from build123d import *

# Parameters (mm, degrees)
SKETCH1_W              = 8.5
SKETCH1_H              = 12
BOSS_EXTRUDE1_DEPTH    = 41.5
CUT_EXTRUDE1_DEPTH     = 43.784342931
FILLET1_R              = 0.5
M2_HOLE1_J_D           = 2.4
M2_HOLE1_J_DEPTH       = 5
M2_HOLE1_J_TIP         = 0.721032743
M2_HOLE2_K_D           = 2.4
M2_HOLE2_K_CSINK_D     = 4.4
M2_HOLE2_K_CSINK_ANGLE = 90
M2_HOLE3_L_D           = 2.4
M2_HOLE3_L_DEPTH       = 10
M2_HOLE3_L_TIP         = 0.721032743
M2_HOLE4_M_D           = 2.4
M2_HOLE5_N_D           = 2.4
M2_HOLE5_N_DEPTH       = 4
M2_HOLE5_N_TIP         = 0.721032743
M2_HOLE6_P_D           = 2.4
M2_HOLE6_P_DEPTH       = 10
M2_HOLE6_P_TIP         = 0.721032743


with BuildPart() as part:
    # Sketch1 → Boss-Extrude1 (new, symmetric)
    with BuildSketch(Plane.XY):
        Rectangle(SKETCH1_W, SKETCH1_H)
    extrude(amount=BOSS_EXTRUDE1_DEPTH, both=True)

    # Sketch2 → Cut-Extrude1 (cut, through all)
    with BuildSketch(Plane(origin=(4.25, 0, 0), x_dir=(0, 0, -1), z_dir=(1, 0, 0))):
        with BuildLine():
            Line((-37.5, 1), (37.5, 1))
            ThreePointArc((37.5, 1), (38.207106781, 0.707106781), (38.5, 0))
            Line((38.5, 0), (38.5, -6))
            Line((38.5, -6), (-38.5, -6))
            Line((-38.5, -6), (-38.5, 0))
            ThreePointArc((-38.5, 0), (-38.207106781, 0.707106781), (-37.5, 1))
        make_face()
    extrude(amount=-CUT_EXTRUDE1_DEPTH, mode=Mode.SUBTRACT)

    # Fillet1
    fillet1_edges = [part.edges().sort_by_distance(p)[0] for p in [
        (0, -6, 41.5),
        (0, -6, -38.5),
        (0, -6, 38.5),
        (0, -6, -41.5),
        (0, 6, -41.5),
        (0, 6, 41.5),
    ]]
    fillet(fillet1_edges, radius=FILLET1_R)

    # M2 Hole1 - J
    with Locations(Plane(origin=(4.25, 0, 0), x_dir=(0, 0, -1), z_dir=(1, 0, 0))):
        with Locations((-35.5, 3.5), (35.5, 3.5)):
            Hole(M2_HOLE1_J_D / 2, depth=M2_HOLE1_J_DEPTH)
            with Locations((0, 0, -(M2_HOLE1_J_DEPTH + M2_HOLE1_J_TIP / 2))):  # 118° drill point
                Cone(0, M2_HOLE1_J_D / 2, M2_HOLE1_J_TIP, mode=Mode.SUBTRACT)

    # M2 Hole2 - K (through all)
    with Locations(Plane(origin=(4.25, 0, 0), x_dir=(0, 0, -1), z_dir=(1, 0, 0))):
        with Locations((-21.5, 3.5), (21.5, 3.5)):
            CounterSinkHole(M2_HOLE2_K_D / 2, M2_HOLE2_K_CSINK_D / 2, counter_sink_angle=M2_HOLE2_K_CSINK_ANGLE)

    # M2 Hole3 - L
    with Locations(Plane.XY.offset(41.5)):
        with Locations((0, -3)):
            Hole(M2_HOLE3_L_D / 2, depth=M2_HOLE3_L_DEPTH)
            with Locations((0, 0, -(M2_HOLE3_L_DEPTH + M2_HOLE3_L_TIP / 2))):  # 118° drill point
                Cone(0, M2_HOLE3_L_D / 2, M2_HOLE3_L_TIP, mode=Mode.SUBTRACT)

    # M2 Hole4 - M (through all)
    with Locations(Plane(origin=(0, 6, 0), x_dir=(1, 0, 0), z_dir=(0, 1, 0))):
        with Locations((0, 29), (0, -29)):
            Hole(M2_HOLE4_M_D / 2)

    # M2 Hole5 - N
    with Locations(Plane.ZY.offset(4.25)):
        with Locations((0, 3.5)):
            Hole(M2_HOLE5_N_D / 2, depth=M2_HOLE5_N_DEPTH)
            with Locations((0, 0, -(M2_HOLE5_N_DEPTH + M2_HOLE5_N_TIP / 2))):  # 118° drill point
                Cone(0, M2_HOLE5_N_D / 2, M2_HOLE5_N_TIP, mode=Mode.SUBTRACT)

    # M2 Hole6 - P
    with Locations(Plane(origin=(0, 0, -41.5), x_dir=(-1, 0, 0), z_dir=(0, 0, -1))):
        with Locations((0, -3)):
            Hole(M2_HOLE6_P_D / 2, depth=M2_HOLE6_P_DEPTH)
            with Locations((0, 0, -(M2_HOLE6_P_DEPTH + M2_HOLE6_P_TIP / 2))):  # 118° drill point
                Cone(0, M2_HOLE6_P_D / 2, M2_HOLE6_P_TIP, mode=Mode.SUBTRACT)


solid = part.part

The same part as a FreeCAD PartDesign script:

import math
import FreeCAD as App
import Part
import Sketcher

V = App.Vector


def edges_at(feature, points):
    """Names of the edges that pass closest to the given points."""
    edges = feature.Shape.Edges
    near = lambda p: min(range(len(edges)), key=lambda i: edges[i].distToShape(Part.Vertex(*p))[0])
    return sorted({f"Edge{near(p) + 1}" for p in points})


def add_polygon(sketch, points):
    """Adds a closed chain of lines whose ends are joined by coincident constraints."""
    first, n = sketch.GeometryCount, len(points)
    for a, b in zip(points, points[1:] + points[:1]):
        sketch.addGeometry(Part.LineSegment(App.Vector(*a, 0), App.Vector(*b, 0)), False)
    for i in range(n):
        sketch.addConstraint(Sketcher.Constraint("Coincident", first + i, 2, first + (i + 1) % n, 1))

doc = App.newDocument("Part")
params = doc.addObject("Spreadsheet::Sheet", "Params")
for row, (alias, value) in enumerate([
    ("sketch1_height", "12 mm"),
    ("sketch1_width", "8.5 mm"),
    ("pad1_length", "83 mm"),
    ("sketch2_radius", "1 mm"),
    ("sketch2_width", "6 mm"),
    ("sketch2_height", "75 mm"),
    ("fillet_radius", "0.5 mm"),
    ("sketch3_diameter", "2.4 mm"),
    ("hole_diameter", "2.4 mm"),
    ("hole_depth", "5 mm"),
    ("sketch4_diameter", "2.4 mm"),
    ("hole2_diameter", "2.4 mm"),
    ("hole2_csink_diameter", "4.4 mm"),
    ("sketch5_diameter", "2.4 mm"),
    ("hole3_diameter", "2.4 mm"),
    ("hole3_depth", "10 mm"),
    ("sketch6_diameter", "2.4 mm"),
    ("hole4_diameter", "2.4 mm"),
    ("sketch7_diameter", "2.4 mm"),
    ("hole5_diameter", "2.4 mm"),
    ("hole5_depth", "4 mm"),
    ("sketch8_diameter", "2.4 mm"),
    ("hole6_diameter", "2.4 mm"),
    ("hole6_depth", "10 mm"),
], start=1):
    params.set(f"A{row}", alias)
    params.set(f"B{row}", "=" + value)
    params.setAlias(f"B{row}", alias)

body = doc.addObject("PartDesign::Body", "Body")

# Sketch on XY plane
sketch1 = body.newObject("Sketcher::SketchObject", "Sketch")
sketch1.AttachmentSupport = (doc.getObject("XY_Plane"), [""])
sketch1.MapMode = "FlatFace"
add_polygon(sketch1, [(-4.25, 6), (-4.25, -6), (4.25, -6), (4.25, 6)])  # lines 0-3
sketch1.addConstraint(Sketcher.Constraint("Vertical", 0))
sketch1.addConstraint(Sketcher.Constraint("Horizontal", 1))
sketch1.addConstraint(Sketcher.Constraint("Vertical", 2))
sketch1.addConstraint(Sketcher.Constraint("Horizontal", 3))
sketch1.addConstraint(Sketcher.Constraint("Symmetric", 0, 2, 2, 2, -1, 1))
sketch1.addConstraint(Sketcher.Constraint("DistanceY", 0, 2, 0, 1, 12.0))
sketch1.addConstraint(Sketcher.Constraint("DistanceX", 1, 1, 1, 2, 8.5))
sketch1.setExpression("Constraints[9]", "Params.sketch1_height")
sketch1.setExpression("Constraints[10]", "Params.sketch1_width")
pad1 = body.newObject("PartDesign::Pad", "Pad")
pad1.Profile = sketch1
pad1.setExpression("Length", "Params.pad1_length")
pad1.Midplane = True

# Sketch on YZ plane
sketch2 = body.newObject("Sketcher::SketchObject", "Sketch001")
sketch2.AttachmentSupport = (doc.getObject("YZ_Plane"), [""])
sketch2.MapMode = "FlatFace"
sketch2.AttachmentOffset = App.Placement(V(0, 0, 4.25), App.Rotation())
sketch2.addGeometry(Part.LineSegment(V(1, -37.5, 0), V(1, 37.5, 0)), False)
sketch2.addGeometry(Part.ArcOfCircle(Part.Circle(V(0, 37.5, 0), V(0, 0, 1), 1), math.radians(0), math.radians(90)), False)
sketch2.addGeometry(Part.LineSegment(V(0, 38.5, 0), V(-6, 38.5, 0)), False)
sketch2.addGeometry(Part.LineSegment(V(-6, 38.5, 0), V(-6, -38.5, 0)), False)
sketch2.addGeometry(Part.LineSegment(V(-6, -38.5, 0), V(0, -38.5, 0)), False)
sketch2.addGeometry(Part.ArcOfCircle(Part.Circle(V(0, -37.5, 0), V(0, 0, 1), 1), math.radians(-90), math.radians(0)), False)
sketch2.addConstraint(Sketcher.Constraint("Tangent", 0, 2, 1, 1))
sketch2.addConstraint(Sketcher.Constraint("Tangent", 1, 2, 2, 1))
sketch2.addConstraint(Sketcher.Constraint("Coincident", 2, 2, 3, 1))
sketch2.addConstraint(Sketcher.Constraint("Coincident", 3, 2, 4, 1))
sketch2.addConstraint(Sketcher.Constraint("Tangent", 4, 2, 5, 1))
sketch2.addConstraint(Sketcher.Constraint("Tangent", 5, 2, 0, 1))
sketch2.addConstraint(Sketcher.Constraint("Vertical", 0))
sketch2.addConstraint(Sketcher.Constraint("Horizontal", 2))
sketch2.addConstraint(Sketcher.Constraint("Vertical", 3))
sketch2.addConstraint(Sketcher.Constraint("Horizontal", 4))
sketch2.addConstraint(Sketcher.Constraint("Equal", 1, 5))
sketch2.addConstraint(Sketcher.Constraint("Symmetric", 1, 3, 5, 3, -1, 1))
sketch2.addConstraint(Sketcher.Constraint("Radius", 1, 1.0))
sketch2.addConstraint(Sketcher.Constraint("DistanceX", 2, 2, 2, 1, 6.0))
sketch2.addConstraint(Sketcher.Constraint("DistanceY", 0, 1, 0, 2, 75.0))
sketch2.setExpression("Constraints[12]", "Params.sketch2_radius")
sketch2.setExpression("Constraints[13]", "Params.sketch2_width")
sketch2.setExpression("Constraints[14]", "Params.sketch2_height")
pocket1 = body.newObject("PartDesign::Pocket", "Pocket")
pocket1.Profile = sketch2
pocket1.Type = "ThroughAll"
doc.recompute()

fillet = body.newObject("PartDesign::Fillet", "Fillet")
fillet.Base = (pocket1, edges_at(pocket1, [
    (0, -6, 41.5),
    (0, -6, -38.5),
    (0, -6, 38.5),
    (0, -6, -41.5),
    (0, 6, -41.5),
    (0, 6, 41.5),
]))
fillet.setExpression("Radius", "Params.fillet_radius")

# Sketch on YZ plane
sketch3 = body.newObject("Sketcher::SketchObject", "Sketch002")
sketch3.AttachmentSupport = (doc.getObject("YZ_Plane"), [""])
sketch3.MapMode = "FlatFace"
sketch3.AttachmentOffset = App.Placement(V(0, 0, 4.25), App.Rotation())
sketch3.addGeometry(Part.Circle(V(3.5, 35.5, 0), V(0, 0, 1), 1.2), False)
sketch3.addGeometry(Part.Circle(V(3.5, -35.5, 0), V(0, 0, 1), 1.2), False)
sketch3.addConstraint(Sketcher.Constraint("Equal", 0, 1))
sketch3.addConstraint(Sketcher.Constraint("Symmetric", 0, 3, 1, 3, -1))
sketch3.addConstraint(Sketcher.Constraint("Diameter", 0, 2.4))
sketch3.addConstraint(Sketcher.Constraint("DistanceY", 1, 3, 0, 3, 71.0))
sketch3.addConstraint(Sketcher.Constraint("DistanceX", -1, 1, 0, 3, 3.5))
sketch3.setExpression("Constraints[2]", "Params.sketch3_diameter")
doc.recompute()
hole = body.newObject("PartDesign::Hole", "Hole")
hole.Profile = sketch3
hole.ThreadType = "None"
hole.setExpression("Diameter", "Params.hole_diameter")
hole.DepthType = "Dimension"
hole.setExpression("Depth", "Params.hole_depth")
hole.DrillPoint = "Angled"
hole.DrillPointAngle = 118

# Sketch on YZ plane
sketch4 = body.newObject("Sketcher::SketchObject", "Sketch003")
sketch4.AttachmentSupport = (doc.getObject("YZ_Plane"), [""])
sketch4.MapMode = "FlatFace"
sketch4.AttachmentOffset = App.Placement(V(0, 0, 4.25), App.Rotation())
sketch4.addGeometry(Part.Circle(V(3.5, 21.5, 0), V(0, 0, 1), 1.2), False)
sketch4.addGeometry(Part.Circle(V(3.5, -21.5, 0), V(0, 0, 1), 1.2), False)
sketch4.addConstraint(Sketcher.Constraint("Equal", 0, 1))
sketch4.addConstraint(Sketcher.Constraint("Symmetric", 0, 3, 1, 3, -1))
sketch4.addConstraint(Sketcher.Constraint("Diameter", 0, 2.4))
sketch4.addConstraint(Sketcher.Constraint("DistanceY", 1, 3, 0, 3, 43.0))
sketch4.addConstraint(Sketcher.Constraint("DistanceX", -1, 1, 0, 3, 3.5))
sketch4.setExpression("Constraints[2]", "Params.sketch4_diameter")
doc.recompute()
hole2 = body.newObject("PartDesign::Hole", "Hole001")
hole2.Profile = sketch4
hole2.ThreadType = "None"
hole2.setExpression("Diameter", "Params.hole2_diameter")
hole2.DepthType = "ThroughAll"
hole2.HoleCutType = "Countersink"
hole2.setExpression("HoleCutDiameter", "Params.hole2_csink_diameter")
hole2.HoleCutCountersinkAngle = 90

# Sketch on XY plane
sketch5 = body.newObject("Sketcher::SketchObject", "Sketch004")
sketch5.AttachmentSupport = (doc.getObject("XY_Plane"), [""])
sketch5.MapMode = "FlatFace"
sketch5.AttachmentOffset = App.Placement(V(0, 0, 41.5), App.Rotation())
sketch5.addGeometry(Part.Circle(V(0, -3, 0), V(0, 0, 1), 1.2), False)
sketch5.addConstraint(Sketcher.Constraint("PointOnObject", 0, 3, -2))
sketch5.addConstraint(Sketcher.Constraint("Diameter", 0, 2.4))
sketch5.addConstraint(Sketcher.Constraint("DistanceY", 0, 3, -1, 1, 3.0))
sketch5.setExpression("Constraints[1]", "Params.sketch5_diameter")
doc.recompute()
hole3 = body.newObject("PartDesign::Hole", "Hole002")
hole3.Profile = sketch5
hole3.ThreadType = "None"
hole3.setExpression("Diameter", "Params.hole3_diameter")
hole3.DepthType = "Dimension"
hole3.setExpression("Depth", "Params.hole3_depth")
hole3.DrillPoint = "Angled"
hole3.DrillPointAngle = 118

# Sketch on XZ plane
sketch6 = body.newObject("Sketcher::SketchObject", "Sketch005")
sketch6.AttachmentSupport = (doc.getObject("XZ_Plane"), [""])
sketch6.MapMode = "FlatFace"
sketch6.AttachmentOffset = App.Placement(V(0, 0, -6), App.Rotation())
sketch6.addGeometry(Part.Circle(V(0, -29, 0), V(0, 0, 1), 1.2), False)
sketch6.addGeometry(Part.Circle(V(0, 29, 0), V(0, 0, 1), 1.2), False)
sketch6.addConstraint(Sketcher.Constraint("Equal", 0, 1))
sketch6.addConstraint(Sketcher.Constraint("Symmetric", 0, 3, 1, 3, -1, 1))
sketch6.addConstraint(Sketcher.Constraint("PointOnObject", 0, 3, -2))
sketch6.addConstraint(Sketcher.Constraint("Diameter", 0, 2.4))
sketch6.addConstraint(Sketcher.Constraint("DistanceY", 0, 3, -1, 1, 29.0))
sketch6.setExpression("Constraints[3]", "Params.sketch6_diameter")
doc.recompute()
hole4 = body.newObject("PartDesign::Hole", "Hole003")
hole4.Profile = sketch6
hole4.ThreadType = "None"
hole4.setExpression("Diameter", "Params.hole4_diameter")
hole4.DepthType = "ThroughAll"
hole4.Reversed = True

# Sketch on YZ plane
sketch7 = body.newObject("Sketcher::SketchObject", "Sketch006")
sketch7.AttachmentSupport = (doc.getObject("YZ_Plane"), [""])
sketch7.MapMode = "FlatFace"
sketch7.AttachmentOffset = App.Placement(V(0, 0, -4.25), App.Rotation())
sketch7.addGeometry(Part.Circle(V(3.5, 0, 0), V(0, 0, 1), 1.2), False)
sketch7.addConstraint(Sketcher.Constraint("PointOnObject", 0, 3, -1))
sketch7.addConstraint(Sketcher.Constraint("Diameter", 0, 2.4))
sketch7.addConstraint(Sketcher.Constraint("DistanceX", -1, 1, 0, 3, 3.5))
sketch7.setExpression("Constraints[1]", "Params.sketch7_diameter")
doc.recompute()
hole5 = body.newObject("PartDesign::Hole", "Hole004")
hole5.Profile = sketch7
hole5.ThreadType = "None"
hole5.setExpression("Diameter", "Params.hole5_diameter")
hole5.DepthType = "Dimension"
hole5.setExpression("Depth", "Params.hole5_depth")
hole5.DrillPoint = "Angled"
hole5.DrillPointAngle = 118
hole5.Reversed = True

# Sketch on XY plane
sketch8 = body.newObject("Sketcher::SketchObject", "Sketch007")
sketch8.AttachmentSupport = (doc.getObject("XY_Plane"), [""])
sketch8.MapMode = "FlatFace"
sketch8.AttachmentOffset = App.Placement(V(0, 0, -41.5), App.Rotation())
sketch8.addGeometry(Part.Circle(V(0, -3, 0), V(0, 0, 1), 1.2), False)
sketch8.addConstraint(Sketcher.Constraint("PointOnObject", 0, 3, -2))
sketch8.addConstraint(Sketcher.Constraint("Diameter", 0, 2.4))
sketch8.addConstraint(Sketcher.Constraint("DistanceY", 0, 3, -1, 1, 3.0))
sketch8.setExpression("Constraints[1]", "Params.sketch8_diameter")
doc.recompute()
hole6 = body.newObject("PartDesign::Hole", "Hole005")
hole6.Profile = sketch8
hole6.ThreadType = "None"
hole6.setExpression("Diameter", "Params.hole6_diameter")
hole6.DepthType = "Dimension"
hole6.setExpression("Depth", "Params.hole6_depth")
hole6.DrillPoint = "Angled"
hole6.DrillPointAngle = 118
hole6.Reversed = True

doc.recompute()
